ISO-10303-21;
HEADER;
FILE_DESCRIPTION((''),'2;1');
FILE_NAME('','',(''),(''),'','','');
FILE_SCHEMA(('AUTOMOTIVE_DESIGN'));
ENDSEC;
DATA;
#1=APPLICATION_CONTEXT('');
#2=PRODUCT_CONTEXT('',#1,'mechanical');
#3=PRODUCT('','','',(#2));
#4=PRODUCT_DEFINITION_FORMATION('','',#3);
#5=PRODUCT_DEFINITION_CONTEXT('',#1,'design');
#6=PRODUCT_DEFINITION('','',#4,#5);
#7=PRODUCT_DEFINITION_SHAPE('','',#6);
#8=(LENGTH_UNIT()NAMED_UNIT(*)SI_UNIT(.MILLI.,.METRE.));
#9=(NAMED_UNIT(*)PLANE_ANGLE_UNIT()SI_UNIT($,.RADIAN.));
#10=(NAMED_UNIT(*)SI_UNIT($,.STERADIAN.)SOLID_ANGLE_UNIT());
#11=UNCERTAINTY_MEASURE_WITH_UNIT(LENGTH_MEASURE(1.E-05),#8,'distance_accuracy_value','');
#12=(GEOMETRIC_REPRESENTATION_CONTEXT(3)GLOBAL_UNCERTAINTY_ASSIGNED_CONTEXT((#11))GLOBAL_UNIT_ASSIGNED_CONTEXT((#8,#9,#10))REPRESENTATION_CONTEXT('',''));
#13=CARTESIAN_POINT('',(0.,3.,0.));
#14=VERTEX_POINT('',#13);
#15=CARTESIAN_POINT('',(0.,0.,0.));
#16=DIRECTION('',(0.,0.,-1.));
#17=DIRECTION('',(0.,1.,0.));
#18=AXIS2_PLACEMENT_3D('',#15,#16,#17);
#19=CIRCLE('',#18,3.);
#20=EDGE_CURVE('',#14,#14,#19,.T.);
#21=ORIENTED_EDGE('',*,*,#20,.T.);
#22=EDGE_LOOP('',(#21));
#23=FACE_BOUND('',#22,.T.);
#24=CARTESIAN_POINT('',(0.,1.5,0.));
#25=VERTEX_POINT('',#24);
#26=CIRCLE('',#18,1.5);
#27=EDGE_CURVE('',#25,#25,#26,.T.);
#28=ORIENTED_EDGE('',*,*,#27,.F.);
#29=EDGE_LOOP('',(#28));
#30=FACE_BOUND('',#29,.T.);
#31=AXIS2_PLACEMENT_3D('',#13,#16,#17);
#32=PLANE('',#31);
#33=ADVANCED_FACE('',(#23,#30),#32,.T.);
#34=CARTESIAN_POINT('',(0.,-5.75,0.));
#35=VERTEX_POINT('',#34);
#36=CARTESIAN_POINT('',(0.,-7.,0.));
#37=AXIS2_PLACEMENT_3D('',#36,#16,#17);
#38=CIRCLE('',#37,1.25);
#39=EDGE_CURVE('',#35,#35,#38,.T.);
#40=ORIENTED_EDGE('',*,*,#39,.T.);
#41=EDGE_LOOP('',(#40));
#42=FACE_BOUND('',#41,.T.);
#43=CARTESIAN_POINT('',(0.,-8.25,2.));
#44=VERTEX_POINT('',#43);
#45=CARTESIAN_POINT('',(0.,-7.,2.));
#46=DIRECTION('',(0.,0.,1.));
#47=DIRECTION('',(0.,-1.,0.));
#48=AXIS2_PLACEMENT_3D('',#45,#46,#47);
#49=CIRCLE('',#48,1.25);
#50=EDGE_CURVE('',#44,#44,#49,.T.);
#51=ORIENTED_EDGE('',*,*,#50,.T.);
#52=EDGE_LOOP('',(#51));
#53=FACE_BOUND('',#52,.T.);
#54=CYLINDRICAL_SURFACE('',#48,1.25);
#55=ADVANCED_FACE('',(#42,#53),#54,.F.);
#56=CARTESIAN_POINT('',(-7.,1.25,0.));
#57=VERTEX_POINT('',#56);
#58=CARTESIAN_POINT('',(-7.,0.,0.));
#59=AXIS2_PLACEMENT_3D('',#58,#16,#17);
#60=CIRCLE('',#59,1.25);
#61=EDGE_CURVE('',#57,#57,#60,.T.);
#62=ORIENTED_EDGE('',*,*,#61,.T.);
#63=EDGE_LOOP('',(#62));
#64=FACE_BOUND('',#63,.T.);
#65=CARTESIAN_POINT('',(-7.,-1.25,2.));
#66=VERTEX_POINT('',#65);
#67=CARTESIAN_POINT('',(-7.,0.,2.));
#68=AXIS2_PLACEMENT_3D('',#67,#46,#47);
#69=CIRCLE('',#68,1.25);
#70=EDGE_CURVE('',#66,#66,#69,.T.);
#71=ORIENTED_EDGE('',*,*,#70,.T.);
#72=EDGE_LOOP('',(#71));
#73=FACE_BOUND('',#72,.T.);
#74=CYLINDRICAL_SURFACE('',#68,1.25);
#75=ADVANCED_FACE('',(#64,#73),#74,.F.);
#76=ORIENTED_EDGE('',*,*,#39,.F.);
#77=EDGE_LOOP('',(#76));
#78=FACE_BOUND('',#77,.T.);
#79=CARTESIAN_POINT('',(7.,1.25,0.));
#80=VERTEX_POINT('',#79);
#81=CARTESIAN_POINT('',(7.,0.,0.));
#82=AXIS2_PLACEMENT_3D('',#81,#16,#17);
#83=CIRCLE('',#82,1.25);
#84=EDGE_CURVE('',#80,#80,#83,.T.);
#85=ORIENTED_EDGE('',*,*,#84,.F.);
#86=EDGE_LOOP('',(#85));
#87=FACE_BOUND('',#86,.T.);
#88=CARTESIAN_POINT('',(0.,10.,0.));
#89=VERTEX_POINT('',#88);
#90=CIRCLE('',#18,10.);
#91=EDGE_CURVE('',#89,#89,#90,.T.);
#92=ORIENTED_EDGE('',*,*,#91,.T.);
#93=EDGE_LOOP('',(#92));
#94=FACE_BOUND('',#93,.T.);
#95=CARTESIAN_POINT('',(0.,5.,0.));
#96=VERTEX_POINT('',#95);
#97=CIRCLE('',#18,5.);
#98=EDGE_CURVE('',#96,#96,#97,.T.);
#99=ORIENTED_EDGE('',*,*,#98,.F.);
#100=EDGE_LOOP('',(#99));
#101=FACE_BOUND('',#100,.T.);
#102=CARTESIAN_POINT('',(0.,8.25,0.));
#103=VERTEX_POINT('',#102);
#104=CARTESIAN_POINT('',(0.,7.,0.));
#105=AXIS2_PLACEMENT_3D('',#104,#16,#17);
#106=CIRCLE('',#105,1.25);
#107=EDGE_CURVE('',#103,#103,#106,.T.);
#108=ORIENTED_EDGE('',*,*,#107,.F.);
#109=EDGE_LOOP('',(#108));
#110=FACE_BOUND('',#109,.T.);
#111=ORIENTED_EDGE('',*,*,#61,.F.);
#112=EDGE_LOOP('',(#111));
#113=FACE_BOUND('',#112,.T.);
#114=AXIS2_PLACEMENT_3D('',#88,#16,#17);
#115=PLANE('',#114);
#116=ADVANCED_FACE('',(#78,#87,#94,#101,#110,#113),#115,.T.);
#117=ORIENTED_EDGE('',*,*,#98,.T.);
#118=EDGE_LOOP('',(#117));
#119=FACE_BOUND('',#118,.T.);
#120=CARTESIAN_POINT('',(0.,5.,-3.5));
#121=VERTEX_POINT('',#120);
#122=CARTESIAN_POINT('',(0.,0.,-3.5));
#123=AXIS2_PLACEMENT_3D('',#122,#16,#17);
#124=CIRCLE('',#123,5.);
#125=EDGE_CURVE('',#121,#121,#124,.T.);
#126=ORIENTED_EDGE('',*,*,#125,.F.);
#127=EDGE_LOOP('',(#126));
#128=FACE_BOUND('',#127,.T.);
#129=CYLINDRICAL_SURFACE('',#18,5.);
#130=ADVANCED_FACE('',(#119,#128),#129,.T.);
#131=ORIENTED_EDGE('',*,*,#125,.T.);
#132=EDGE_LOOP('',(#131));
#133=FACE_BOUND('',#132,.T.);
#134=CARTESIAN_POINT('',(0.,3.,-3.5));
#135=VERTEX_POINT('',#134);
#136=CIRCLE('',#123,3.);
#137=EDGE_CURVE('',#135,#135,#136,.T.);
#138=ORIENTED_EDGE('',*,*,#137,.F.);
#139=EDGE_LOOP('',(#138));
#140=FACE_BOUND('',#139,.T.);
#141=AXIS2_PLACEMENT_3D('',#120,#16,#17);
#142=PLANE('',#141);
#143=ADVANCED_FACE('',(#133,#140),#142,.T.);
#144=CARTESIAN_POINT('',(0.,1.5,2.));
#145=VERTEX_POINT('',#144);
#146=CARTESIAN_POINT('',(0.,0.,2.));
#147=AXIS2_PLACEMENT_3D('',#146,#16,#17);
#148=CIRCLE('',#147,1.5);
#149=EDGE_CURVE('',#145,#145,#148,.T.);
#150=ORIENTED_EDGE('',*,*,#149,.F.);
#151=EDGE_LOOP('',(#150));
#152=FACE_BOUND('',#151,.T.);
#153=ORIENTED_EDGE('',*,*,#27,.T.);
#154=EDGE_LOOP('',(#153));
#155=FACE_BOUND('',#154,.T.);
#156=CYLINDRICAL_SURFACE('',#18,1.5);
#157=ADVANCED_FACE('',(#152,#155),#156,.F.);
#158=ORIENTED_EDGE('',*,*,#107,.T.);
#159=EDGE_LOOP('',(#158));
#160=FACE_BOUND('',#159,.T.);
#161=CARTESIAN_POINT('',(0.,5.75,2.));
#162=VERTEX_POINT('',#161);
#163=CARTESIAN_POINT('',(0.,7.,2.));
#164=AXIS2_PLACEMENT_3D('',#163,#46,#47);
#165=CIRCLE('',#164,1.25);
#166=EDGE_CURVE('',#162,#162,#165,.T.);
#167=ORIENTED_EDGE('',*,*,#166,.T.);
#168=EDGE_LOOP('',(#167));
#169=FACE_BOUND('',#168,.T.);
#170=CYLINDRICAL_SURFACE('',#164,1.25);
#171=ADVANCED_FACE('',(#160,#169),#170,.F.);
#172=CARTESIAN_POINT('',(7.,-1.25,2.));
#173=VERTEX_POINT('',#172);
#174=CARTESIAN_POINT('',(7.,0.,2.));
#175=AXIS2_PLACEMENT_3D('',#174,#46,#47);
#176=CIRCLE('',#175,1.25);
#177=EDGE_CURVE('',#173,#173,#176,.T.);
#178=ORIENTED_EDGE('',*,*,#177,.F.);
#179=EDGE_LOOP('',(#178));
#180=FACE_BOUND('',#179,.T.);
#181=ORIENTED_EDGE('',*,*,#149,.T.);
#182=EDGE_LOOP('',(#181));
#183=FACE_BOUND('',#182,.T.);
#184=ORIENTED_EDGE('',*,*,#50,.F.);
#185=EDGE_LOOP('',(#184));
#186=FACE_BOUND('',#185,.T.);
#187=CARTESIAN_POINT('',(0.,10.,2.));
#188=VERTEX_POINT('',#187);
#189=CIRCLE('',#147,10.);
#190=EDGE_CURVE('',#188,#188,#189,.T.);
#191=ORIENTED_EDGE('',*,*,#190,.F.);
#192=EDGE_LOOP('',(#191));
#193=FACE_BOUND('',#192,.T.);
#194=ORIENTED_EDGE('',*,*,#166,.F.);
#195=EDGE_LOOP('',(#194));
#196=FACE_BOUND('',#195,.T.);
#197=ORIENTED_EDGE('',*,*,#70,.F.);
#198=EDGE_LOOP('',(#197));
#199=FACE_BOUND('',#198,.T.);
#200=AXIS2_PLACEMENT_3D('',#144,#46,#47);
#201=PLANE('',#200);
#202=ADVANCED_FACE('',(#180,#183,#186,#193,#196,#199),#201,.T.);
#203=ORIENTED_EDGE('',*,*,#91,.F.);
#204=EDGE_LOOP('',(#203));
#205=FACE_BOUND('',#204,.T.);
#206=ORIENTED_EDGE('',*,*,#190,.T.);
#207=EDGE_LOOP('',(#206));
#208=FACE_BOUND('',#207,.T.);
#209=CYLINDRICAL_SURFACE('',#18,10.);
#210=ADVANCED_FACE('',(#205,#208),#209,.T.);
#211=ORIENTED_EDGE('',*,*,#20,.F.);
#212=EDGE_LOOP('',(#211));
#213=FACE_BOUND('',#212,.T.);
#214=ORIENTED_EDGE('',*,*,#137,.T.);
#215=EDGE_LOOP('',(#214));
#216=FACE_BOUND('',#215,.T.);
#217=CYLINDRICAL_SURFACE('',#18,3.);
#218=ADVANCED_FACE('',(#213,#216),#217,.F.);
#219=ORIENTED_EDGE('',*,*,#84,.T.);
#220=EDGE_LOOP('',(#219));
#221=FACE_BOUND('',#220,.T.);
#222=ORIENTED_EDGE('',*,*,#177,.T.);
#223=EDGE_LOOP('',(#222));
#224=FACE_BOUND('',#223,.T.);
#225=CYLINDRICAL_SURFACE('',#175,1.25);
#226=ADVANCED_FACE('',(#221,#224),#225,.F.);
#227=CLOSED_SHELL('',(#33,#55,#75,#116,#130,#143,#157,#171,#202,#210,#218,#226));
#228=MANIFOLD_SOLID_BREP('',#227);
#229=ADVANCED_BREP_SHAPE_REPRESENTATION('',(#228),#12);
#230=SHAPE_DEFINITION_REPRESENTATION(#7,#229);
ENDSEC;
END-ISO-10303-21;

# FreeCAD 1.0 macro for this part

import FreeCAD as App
import Part
import Sketcher
from FreeCAD import Vector
Q = App.Units.Quantity


def add_polygon(sketch, points):
    """Adds a closed chain of lines whose ends are joined by coincident constraints."""
    first, n = sketch.GeometryCount, len(points)
    for a, b in zip(points, points[1:] + points[:1]):
        sketch.addGeometry(Part.LineSegment(App.Vector(*a, 0), App.Vector(*b, 0)), False)
    for i in range(n):
        sketch.addConstraint(Sketcher.Constraint("Coincident", first + i, 2, first + (i + 1) % n, 1))

doc = App.newDocument("Part")
body = doc.addObject("PartDesign::Body", "Body")

# Sketch on YZ plane
sketch1 = body.newObject("Sketcher::SketchObject", "Sketch")
sketch1.AttachmentSupport = (doc.getObject("YZ_Plane"), [""])
sketch1.MapMode = "FlatFace"
add_polygon(sketch1, [(10, 2), (1.5, 2), (1.5, 0), (3, 0), (3, -3.5), (5, -3.5), (5, 0), (10, 0)])  # lines 0-7
sketch1.addConstraint(Sketcher.Constraint("Horizontal", 0))
sketch1.addConstraint(Sketcher.Constraint("Vertical", 1))
sketch1.addConstraint(Sketcher.Constraint("Horizontal", 2))
sketch1.addConstraint(Sketcher.Constraint("Vertical", 3))
sketch1.addConstraint(Sketcher.Constraint("Horizontal", 4))
sketch1.addConstraint(Sketcher.Constraint("Vertical", 5))
sketch1.addConstraint(Sketcher.Constraint("Horizontal", 6))
sketch1.addConstraint(Sketcher.Constraint("Vertical", 7))
sketch1.addConstraint(Sketcher.Constraint("PointOnObject", 1, 2, -1))
sketch1.addConstraint(Sketcher.Constraint("PointOnObject", 5, 2, -1))
sketch1.addConstraint(Sketcher.Constraint("Equal", 4, 1))
sketch1.addConstraint(Sketcher.Constraint("DistanceX", 4, 1, 4, 2, 2.0))
sketch1.addConstraint(Sketcher.Constraint("DistanceX", 6, 1, 6, 2, 5.0))
sketch1.addConstraint(Sketcher.Constraint("DistanceX", 0, 2, 0, 1, 8.5))
sketch1.addConstraint(Sketcher.Constraint("DistanceY", 3, 2, 3, 1, 3.5))
sketch1.addConstraint(Sketcher.Constraint("DistanceX", -1, 1, 2, 2, 3.0))
revolution = body.newObject("PartDesign::Revolution", "Revolution")
revolution.Profile = sketch1
revolution.ReferenceAxis = (sketch1, ["V_Axis"])
revolution.Angle = 360

# Sketch on YZ plane
sketch2 = body.newObject("Sketcher::SketchObject", "Sketch001")
sketch2.AttachmentSupport = (doc.getObject("YZ_Plane"), [""])
sketch2.MapMode = "FlatFace"
add_polygon(sketch2, [(7, -6.3), (7, 2), (5.8, 2), (5.8, -5.5)])  # lines 0-3
sketch2.addGeometry(Part.LineSegment(Vector(7, 2, 0), Vector(7, -6.3, 0)), True)  # axis
sketch2.addConstraint(Sketcher.Constraint("Vertical", 0))
sketch2.addConstraint(Sketcher.Constraint("Horizontal", 1))
sketch2.addConstraint(Sketcher.Constraint("Vertical", 2))
sketch2.addConstraint(Sketcher.Constraint("Vertical", 4))
sketch2.addConstraint(Sketcher.Constraint("Coincident", 4, 1, 0, 2))
sketch2.addConstraint(Sketcher.Constraint("Equal", 0, 4))
sketch2.addConstraint(Sketcher.Constraint("Angle", 3, Q("-31 deg")))
sketch2.addConstraint(Sketcher.Constraint("DistanceY", 2, 2, 2, 1, 7.5))
sketch2.addConstraint(Sketcher.Constraint("DistanceX", -1, 1, 0, 2, 7.0))
sketch2.addConstraint(Sketcher.Constraint("DistanceY", -1, 1, 0, 2, 2.0))
sketch2.addConstraint(Sketcher.Constraint("DistanceX", 1, 2, 1, 1, 1.25))
groove = body.newObject("PartDesign::Groove", "Groove")
groove.Profile = sketch2
groove.ReferenceAxis = (sketch2, ["Axis0"])
groove.Angle = 360
doc.recompute()

polarpattern = body.newObject("PartDesign::PolarPattern", "PolarPattern")
polarpattern.Originals = [groove]
polarpattern.Axis = (doc.getObject("Z_Axis"), [""])
polarpattern.Angle = 360
polarpattern.Occurrences = 4
body.Tip = polarpattern

doc.recompute()
